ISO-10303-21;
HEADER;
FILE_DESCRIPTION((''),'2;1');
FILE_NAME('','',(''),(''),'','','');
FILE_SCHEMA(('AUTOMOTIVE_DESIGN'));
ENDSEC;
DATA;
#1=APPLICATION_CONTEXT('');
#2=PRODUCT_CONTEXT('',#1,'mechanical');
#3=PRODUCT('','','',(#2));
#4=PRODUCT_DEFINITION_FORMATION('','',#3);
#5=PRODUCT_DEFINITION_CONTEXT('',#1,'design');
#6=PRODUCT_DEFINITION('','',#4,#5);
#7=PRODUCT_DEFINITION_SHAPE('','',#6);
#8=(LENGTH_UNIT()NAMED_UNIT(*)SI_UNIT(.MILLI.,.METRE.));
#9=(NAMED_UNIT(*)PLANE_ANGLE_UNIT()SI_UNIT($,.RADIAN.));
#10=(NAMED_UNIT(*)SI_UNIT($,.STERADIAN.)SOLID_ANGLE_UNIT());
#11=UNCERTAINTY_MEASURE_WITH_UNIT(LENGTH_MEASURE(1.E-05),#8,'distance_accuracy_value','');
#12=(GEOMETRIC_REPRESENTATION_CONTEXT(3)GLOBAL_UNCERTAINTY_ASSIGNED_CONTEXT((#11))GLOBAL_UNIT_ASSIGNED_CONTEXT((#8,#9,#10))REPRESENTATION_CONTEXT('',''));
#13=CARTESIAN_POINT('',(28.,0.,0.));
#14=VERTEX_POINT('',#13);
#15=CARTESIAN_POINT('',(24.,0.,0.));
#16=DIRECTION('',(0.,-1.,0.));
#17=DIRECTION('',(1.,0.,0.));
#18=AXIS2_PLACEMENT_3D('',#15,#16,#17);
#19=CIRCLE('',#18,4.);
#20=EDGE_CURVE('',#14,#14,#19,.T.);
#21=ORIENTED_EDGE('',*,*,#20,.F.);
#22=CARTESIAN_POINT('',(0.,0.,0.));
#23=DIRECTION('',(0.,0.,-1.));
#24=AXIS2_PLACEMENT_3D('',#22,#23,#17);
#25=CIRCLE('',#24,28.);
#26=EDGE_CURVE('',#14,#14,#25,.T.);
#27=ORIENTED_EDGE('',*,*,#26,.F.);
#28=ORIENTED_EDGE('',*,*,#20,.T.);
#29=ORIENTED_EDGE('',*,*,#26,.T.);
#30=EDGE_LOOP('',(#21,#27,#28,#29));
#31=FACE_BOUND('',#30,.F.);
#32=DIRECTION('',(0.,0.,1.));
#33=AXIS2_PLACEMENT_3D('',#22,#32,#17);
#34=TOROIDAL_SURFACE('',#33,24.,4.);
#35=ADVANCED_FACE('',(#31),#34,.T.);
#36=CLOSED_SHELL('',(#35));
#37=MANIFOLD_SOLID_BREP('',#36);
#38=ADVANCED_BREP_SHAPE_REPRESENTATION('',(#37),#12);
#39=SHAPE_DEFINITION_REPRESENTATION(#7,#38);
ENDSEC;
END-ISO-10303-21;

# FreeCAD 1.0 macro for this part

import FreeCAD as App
import Part
import Sketcher

V = App.Vector

doc = App.newDocument("Part")
body = doc.addObject("PartDesign::Body", "Body")

# Sketch on XZ plane
sketch1 = doc.addObject("Sketcher::SketchObject", "Sketch")
body.addObject(sketch1)
sketch1.AttachmentSupport = (doc.XZ_Plane, [""])
sketch1.MapMode = "FlatFace"
sketch1.addGeometry(Part.Circle(V(24, 0, 0), V(0, 0, 1), 4), False)
sketch1.addConstraint([
    Sketcher.Constraint("PointOnObject", 0, 3, -1),
    Sketcher.Constraint("Diameter", 0, 8.0),
    Sketcher.Constraint("DistanceX", -1, 1, 0, 3, 24.0),
])
revolution = doc.addObject("PartDesign::Revolution", "Revolution")
body.addObject(revolution)
revolution.Profile = sketch1
revolution.ReferenceAxis = (sketch1, ["V_Axis"])
revolution.Angle = 360

doc.recompute()
